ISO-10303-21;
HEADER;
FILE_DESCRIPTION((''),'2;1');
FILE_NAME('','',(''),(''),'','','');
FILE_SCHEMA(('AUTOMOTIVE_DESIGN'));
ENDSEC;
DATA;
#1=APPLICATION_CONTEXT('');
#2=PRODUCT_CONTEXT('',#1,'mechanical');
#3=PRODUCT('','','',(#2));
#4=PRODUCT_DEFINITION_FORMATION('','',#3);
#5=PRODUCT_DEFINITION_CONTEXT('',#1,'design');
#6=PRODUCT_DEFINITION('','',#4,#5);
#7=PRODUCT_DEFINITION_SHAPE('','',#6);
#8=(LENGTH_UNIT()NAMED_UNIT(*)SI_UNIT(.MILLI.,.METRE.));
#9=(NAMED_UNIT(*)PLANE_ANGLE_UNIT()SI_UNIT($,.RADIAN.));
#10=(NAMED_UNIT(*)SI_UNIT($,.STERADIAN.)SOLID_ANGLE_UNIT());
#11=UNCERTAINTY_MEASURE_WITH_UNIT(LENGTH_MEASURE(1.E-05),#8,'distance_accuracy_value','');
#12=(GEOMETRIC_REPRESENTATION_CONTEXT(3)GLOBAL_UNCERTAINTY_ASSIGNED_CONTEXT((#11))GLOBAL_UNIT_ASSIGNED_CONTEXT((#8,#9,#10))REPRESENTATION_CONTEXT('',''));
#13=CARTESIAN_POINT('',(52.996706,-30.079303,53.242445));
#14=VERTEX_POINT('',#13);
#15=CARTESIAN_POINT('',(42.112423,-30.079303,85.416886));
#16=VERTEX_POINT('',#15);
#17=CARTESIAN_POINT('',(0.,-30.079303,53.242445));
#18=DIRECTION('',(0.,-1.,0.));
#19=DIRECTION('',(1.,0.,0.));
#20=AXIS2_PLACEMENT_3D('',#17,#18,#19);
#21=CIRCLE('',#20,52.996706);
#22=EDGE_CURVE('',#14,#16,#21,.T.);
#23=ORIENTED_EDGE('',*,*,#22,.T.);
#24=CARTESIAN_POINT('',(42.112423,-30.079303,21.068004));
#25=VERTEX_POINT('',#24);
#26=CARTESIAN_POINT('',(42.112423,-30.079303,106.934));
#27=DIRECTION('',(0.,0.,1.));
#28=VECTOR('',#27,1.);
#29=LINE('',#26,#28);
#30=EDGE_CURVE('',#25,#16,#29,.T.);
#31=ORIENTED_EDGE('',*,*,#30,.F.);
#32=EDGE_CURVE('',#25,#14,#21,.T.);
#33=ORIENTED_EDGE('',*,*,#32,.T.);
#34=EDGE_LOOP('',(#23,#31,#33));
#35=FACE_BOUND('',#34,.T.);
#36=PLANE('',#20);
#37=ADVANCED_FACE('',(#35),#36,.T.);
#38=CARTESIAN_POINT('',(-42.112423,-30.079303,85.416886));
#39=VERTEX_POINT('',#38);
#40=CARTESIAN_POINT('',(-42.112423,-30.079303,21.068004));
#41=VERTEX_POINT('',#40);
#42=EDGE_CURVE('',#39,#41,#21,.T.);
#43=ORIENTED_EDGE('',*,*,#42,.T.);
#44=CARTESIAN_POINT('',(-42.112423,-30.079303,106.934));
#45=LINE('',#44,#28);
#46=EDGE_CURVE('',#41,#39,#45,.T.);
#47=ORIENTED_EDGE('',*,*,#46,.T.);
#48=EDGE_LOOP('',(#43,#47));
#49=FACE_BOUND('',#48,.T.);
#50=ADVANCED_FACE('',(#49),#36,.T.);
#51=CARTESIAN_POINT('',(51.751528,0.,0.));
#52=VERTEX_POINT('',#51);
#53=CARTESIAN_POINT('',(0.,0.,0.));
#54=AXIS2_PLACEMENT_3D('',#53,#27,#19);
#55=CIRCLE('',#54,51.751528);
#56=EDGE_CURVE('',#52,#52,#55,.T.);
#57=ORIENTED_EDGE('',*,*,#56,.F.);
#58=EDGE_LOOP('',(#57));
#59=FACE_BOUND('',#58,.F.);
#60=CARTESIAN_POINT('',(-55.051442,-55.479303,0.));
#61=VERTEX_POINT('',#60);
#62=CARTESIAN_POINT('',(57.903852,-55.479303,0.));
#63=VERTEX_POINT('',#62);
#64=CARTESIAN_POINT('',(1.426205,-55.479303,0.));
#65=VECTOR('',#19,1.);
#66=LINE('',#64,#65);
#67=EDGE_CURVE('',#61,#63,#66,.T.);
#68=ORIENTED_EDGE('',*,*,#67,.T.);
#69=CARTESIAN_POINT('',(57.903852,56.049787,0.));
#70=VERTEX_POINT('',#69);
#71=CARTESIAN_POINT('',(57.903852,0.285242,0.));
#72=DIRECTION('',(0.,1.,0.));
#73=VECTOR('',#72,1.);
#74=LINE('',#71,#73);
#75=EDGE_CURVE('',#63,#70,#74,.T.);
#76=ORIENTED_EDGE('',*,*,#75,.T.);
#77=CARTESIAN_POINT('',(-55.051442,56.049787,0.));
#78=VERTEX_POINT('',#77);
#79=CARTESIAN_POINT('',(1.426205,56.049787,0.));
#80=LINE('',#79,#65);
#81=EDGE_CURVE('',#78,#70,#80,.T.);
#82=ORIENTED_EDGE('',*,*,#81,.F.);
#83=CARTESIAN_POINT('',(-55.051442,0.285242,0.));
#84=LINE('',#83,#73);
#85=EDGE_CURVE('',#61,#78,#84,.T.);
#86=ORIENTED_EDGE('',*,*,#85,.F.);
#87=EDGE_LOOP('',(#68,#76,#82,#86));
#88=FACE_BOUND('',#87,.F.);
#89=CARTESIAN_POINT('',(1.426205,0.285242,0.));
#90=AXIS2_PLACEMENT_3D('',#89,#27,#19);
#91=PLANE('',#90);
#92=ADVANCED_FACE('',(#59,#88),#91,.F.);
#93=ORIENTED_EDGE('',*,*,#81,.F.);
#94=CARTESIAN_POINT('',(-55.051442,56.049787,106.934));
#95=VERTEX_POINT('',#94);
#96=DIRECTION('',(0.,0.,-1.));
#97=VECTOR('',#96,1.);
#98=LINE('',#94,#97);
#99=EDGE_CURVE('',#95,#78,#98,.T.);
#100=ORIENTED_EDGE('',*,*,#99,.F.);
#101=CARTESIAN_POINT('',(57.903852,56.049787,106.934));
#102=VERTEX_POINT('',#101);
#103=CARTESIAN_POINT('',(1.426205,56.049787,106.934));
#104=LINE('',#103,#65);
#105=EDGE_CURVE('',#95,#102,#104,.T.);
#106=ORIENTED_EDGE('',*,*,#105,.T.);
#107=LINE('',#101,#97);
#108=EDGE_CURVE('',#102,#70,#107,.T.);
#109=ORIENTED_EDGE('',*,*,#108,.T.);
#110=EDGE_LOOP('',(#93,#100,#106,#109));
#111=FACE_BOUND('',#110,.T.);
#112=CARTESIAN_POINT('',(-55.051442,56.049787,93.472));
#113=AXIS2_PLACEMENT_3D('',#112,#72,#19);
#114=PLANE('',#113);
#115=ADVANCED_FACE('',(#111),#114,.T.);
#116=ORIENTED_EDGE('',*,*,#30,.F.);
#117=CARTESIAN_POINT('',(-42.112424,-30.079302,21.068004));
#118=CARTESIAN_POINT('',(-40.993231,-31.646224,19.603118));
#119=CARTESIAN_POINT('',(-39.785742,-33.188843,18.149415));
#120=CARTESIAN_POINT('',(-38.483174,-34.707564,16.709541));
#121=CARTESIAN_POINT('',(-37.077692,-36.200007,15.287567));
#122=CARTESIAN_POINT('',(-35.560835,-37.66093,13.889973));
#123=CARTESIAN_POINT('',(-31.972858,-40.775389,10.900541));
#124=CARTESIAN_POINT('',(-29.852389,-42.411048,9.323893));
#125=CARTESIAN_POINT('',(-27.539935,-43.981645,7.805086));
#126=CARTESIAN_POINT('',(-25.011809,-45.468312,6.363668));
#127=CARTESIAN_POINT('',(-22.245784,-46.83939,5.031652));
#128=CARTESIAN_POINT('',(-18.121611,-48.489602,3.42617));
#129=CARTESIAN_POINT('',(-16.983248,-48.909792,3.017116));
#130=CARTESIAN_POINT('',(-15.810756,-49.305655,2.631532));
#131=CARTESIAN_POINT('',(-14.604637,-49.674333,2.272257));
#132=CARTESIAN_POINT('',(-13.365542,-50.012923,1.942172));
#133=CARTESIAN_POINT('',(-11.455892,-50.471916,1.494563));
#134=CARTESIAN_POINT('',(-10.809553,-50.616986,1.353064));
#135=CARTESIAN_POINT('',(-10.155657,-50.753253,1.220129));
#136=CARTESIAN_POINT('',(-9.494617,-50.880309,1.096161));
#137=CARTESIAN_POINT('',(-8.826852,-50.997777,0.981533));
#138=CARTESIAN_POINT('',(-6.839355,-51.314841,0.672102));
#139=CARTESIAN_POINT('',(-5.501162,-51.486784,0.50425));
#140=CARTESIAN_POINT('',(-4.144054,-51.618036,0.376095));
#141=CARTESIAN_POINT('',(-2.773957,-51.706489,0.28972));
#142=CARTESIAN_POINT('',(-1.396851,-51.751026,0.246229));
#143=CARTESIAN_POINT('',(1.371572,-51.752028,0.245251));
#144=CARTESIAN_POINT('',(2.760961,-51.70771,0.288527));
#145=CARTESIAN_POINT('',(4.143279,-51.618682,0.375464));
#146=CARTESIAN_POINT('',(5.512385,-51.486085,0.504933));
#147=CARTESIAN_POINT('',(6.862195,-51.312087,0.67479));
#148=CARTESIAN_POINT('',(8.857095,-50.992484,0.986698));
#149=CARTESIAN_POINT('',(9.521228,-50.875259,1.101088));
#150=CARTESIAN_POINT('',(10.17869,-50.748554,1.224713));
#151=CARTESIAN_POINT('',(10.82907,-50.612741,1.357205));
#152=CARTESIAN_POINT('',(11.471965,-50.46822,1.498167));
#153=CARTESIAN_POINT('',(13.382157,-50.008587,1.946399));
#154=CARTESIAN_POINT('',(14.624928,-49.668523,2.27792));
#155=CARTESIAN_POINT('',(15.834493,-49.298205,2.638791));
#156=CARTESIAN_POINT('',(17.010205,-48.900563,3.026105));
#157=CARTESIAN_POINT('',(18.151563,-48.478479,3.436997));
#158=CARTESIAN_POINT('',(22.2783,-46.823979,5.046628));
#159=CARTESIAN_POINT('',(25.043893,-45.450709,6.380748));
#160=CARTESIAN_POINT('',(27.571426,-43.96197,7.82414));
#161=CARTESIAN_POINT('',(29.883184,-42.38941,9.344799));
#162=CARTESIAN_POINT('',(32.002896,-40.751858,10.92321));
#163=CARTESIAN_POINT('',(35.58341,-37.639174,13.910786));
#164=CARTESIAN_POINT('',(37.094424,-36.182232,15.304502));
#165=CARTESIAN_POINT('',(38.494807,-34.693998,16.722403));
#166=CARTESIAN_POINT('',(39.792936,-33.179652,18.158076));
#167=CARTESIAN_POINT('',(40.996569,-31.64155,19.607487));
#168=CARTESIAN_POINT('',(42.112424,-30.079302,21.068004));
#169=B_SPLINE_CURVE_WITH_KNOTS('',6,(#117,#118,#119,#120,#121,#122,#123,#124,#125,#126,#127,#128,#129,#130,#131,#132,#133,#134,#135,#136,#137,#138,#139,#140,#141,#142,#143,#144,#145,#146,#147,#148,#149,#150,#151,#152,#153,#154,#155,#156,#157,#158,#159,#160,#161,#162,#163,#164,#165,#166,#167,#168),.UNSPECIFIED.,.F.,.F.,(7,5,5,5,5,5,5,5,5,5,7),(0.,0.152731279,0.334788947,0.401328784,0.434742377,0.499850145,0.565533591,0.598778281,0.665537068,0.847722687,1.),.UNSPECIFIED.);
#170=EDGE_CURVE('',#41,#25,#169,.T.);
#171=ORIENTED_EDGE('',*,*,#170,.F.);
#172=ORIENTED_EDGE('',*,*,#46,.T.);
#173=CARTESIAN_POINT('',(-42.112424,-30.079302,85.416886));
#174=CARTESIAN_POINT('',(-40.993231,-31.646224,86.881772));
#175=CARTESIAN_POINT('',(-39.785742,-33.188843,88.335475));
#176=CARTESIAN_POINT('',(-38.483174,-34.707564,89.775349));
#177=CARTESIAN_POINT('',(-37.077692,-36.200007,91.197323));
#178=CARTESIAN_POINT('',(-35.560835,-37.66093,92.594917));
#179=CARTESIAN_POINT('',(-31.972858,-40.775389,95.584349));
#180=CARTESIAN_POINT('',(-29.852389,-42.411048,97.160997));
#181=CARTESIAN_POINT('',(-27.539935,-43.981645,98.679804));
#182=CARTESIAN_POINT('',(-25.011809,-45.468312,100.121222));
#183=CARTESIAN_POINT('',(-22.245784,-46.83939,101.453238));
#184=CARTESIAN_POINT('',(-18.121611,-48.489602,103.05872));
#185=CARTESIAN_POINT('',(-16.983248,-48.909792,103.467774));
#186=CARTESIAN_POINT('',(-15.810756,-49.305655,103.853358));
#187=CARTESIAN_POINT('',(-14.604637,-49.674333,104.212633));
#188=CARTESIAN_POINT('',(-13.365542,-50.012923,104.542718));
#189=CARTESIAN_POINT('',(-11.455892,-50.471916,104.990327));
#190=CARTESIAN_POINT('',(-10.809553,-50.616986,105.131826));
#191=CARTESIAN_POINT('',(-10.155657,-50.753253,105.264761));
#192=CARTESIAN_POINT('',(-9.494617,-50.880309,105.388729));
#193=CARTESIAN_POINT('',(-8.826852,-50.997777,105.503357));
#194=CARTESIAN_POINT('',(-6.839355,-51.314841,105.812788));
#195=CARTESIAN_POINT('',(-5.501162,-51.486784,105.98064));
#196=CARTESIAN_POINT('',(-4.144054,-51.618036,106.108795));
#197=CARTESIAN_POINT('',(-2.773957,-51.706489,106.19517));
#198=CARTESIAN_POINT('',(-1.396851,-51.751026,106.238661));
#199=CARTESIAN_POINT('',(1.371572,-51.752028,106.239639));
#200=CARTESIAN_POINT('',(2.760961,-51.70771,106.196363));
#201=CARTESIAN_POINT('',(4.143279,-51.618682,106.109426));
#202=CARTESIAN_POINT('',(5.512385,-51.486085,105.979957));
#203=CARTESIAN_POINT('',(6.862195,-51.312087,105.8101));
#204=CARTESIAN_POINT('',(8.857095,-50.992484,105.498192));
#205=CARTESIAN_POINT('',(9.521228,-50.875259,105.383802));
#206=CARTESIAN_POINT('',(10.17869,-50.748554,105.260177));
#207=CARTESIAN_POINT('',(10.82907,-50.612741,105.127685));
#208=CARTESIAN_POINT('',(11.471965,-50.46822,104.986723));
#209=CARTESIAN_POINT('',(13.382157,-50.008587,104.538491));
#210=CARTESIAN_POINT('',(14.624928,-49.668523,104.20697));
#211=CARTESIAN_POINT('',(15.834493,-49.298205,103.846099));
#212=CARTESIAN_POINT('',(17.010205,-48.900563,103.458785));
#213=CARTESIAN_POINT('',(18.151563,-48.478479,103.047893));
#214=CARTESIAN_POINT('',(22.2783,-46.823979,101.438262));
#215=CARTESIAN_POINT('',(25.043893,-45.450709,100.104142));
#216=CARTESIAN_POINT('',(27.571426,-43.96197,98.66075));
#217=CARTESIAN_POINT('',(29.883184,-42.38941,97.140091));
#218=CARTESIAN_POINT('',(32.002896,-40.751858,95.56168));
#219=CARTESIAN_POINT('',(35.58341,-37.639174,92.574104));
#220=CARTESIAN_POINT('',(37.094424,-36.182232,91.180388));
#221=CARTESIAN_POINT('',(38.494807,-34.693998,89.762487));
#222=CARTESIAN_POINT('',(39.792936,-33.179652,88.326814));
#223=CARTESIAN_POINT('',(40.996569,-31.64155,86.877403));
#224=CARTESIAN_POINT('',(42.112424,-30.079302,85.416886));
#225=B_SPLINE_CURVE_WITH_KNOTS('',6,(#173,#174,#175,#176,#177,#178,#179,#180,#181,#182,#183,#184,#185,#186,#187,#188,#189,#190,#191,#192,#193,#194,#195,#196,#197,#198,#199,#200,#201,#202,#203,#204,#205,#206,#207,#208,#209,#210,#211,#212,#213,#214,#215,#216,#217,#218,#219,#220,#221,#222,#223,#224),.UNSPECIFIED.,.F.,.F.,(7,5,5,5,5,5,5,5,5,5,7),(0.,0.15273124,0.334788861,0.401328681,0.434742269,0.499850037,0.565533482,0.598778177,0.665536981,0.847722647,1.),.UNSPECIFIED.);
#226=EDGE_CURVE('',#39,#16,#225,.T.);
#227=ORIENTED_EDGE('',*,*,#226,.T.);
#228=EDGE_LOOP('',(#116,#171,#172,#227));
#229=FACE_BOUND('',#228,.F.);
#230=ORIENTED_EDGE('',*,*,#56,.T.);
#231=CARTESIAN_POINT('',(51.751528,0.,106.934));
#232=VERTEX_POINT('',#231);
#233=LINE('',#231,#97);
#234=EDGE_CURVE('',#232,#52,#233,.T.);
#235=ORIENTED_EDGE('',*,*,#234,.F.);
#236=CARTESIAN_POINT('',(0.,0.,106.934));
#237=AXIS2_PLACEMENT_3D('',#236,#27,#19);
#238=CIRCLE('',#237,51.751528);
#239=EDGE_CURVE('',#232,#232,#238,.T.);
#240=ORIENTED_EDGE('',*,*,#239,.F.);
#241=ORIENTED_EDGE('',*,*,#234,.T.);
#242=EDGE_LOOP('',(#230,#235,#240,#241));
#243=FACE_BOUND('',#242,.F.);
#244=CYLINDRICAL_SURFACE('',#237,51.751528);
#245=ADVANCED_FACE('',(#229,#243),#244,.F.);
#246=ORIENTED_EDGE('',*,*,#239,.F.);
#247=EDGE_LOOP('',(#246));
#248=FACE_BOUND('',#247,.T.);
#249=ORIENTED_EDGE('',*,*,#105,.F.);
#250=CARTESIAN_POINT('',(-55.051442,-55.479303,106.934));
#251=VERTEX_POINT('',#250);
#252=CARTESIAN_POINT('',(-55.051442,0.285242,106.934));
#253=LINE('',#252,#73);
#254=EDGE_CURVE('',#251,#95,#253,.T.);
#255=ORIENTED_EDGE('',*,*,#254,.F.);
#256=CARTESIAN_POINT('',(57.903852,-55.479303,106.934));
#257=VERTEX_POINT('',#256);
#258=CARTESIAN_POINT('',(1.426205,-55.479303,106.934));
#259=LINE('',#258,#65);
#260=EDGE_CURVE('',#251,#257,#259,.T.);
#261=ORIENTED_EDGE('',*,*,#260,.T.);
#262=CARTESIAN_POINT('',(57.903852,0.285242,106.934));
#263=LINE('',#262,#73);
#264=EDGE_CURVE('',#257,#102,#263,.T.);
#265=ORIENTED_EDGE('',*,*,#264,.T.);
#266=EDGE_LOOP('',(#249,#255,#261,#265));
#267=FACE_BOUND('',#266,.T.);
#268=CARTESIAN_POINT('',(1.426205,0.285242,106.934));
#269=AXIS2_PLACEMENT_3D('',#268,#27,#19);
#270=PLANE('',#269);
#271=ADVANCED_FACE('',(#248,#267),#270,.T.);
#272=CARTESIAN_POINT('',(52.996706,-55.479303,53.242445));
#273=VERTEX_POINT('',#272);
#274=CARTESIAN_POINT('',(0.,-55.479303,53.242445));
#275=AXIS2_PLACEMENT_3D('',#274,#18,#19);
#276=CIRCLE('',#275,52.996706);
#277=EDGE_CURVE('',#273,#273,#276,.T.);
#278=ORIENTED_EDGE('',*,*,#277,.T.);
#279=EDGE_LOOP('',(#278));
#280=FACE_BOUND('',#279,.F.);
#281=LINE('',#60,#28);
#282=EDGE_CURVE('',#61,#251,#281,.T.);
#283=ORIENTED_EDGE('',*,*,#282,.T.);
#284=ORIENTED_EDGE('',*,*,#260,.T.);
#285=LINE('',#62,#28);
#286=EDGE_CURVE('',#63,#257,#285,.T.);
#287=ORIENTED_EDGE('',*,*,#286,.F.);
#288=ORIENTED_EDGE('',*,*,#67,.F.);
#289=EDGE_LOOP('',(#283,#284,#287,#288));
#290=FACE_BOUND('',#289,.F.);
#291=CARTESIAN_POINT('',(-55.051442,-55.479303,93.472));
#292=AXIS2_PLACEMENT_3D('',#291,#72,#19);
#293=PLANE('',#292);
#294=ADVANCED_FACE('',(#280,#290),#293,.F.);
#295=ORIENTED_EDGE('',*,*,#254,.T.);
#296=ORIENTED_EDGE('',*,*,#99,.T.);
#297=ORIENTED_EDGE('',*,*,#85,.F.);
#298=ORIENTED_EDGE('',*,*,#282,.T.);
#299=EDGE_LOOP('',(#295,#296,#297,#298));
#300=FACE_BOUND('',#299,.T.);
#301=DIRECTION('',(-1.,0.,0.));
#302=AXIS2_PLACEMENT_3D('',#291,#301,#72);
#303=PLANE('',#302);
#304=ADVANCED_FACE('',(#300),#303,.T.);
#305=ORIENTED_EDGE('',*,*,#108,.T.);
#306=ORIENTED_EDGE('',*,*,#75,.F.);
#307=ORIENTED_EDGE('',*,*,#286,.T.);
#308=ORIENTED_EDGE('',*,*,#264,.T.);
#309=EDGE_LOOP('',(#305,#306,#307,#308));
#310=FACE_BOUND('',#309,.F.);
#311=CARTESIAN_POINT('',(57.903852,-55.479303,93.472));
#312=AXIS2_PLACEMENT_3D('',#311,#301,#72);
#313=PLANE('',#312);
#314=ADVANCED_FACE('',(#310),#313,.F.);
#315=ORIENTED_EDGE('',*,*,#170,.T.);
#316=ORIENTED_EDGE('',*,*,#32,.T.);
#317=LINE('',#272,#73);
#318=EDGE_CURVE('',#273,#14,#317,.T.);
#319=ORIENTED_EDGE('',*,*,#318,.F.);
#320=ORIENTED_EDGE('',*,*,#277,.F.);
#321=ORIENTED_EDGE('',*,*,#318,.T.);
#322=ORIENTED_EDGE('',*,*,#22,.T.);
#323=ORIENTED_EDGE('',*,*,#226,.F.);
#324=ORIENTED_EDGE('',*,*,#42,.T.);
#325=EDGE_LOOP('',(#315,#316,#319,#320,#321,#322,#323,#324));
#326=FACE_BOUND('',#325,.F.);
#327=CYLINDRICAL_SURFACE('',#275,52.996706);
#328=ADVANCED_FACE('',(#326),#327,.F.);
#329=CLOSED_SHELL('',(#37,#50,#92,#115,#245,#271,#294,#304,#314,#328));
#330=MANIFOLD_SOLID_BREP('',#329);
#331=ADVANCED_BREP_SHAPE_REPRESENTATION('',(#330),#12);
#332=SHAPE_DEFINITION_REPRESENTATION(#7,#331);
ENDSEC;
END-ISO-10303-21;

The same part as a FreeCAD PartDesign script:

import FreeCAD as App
import Part
import Sketcher

V = App.Vector
Q = App.Units.Quantity

doc = App.newDocument("Part")
body = doc.addObject("PartDesign::Body", "Body")

# Sketch on XY plane
sketch1 = doc.addObject("Sketcher::SketchObject", "Sketch")
body.addObject(sketch1)
sketch1.AttachmentSupport = (doc.XY_Plane, [""])
sketch1.MapMode = "FlatFace"
sketch1.addGeometry([
    Part.LineSegment(V(-55, 56, 0), V(-55, -55, 0)),
    Part.LineSegment(V(-55, -55, 0), V(58, -55, 0)),
    Part.LineSegment(V(58, -55, 0), V(58, 56, 0)),
    Part.LineSegment(V(58, 56, 0), V(-55, 56, 0)),
], False)
sketch1.addConstraint([
    Sketcher.Constraint("Coincident", 0, 2, 1, 1),
    Sketcher.Constraint("Coincident", 1, 2, 2, 1),
    Sketcher.Constraint("Coincident", 2, 2, 3, 1),
    Sketcher.Constraint("Coincident", 3, 2, 0, 1),
    Sketcher.Constraint("Vertical", 0),
    Sketcher.Constraint("Horizontal", 1),
    Sketcher.Constraint("Vertical", 2),
    Sketcher.Constraint("Horizontal", 3),
    Sketcher.Constraint("DistanceY", 0, 2, 0, 1, Q("111.52909 mm")),
    Sketcher.Constraint("DistanceX", 1, 1, 1, 2, Q("112.955294 mm")),
    Sketcher.Constraint("DistanceX", 0, 2, -1, 1, Q("55.051442 mm")),
    Sketcher.Constraint("DistanceY", 0, 2, -1, 1, Q("55.479303 mm")),
])
pad1 = doc.addObject("PartDesign::Pad", "Pad")
body.addObject(pad1)
pad1.Profile = sketch1
pad1.Length = Q("3.68 in")

# Sketch on XY plane
sketch2 = doc.addObject("Sketcher::SketchObject", "Sketch001")
body.addObject(sketch2)
sketch2.AttachmentSupport = (doc.XY_Plane, [""])
sketch2.MapMode = "FlatFace"
sketch2.AttachmentOffset = App.Placement(V(0, 0, 3.68 * 25.4), App.Rotation())
sketch2.addGeometry([
    Part.LineSegment(V(-55, 56, 0), V(-55, -55, 0)),
    Part.LineSegment(V(-55, -55, 0), V(58, -55, 0)),
    Part.LineSegment(V(58, -55, 0), V(58, 56, 0)),
    Part.LineSegment(V(58, 56, 0), V(-55, 56, 0)),
], False)
sketch2.addConstraint([
    Sketcher.Constraint("Coincident", 0, 2, 1, 1),
    Sketcher.Constraint("Coincident", 1, 2, 2, 1),
    Sketcher.Constraint("Coincident", 2, 2, 3, 1),
    Sketcher.Constraint("Coincident", 3, 2, 0, 1),
    Sketcher.Constraint("Vertical", 0),
    Sketcher.Constraint("Horizontal", 1),
    Sketcher.Constraint("Vertical", 2),
    Sketcher.Constraint("Horizontal", 3),
    Sketcher.Constraint("DistanceY", 0, 2, 0, 1, Q("111.52909 mm")),
    Sketcher.Constraint("DistanceX", 1, 1, 1, 2, Q("112.955294 mm")),
    Sketcher.Constraint("DistanceX", 0, 2, -1, 1, Q("55.051442 mm")),
    Sketcher.Constraint("DistanceY", 0, 2, -1, 1, Q("55.479303 mm")),
])
pad2 = doc.addObject("PartDesign::Pad", "Pad001")
body.addObject(pad2)
pad2.Profile = sketch2
pad2.Length = Q("0.53 in")

# Sketch on XY plane
sketch3 = doc.addObject("Sketcher::SketchObject", "Sketch002")
body.addObject(sketch3)
sketch3.AttachmentSupport = (doc.XY_Plane, [""])
sketch3.MapMode = "FlatFace"
sketch3.AttachmentOffset = App.Placement(V(0, 0, 4.21 * 25.4), App.Rotation())
sketch3.addGeometry(Part.Circle(V(0, 0, 0), V(0, 0, 1), 52), False)
sketch3.addConstraint([
    Sketcher.Constraint("Coincident", 0, 3, -1, 1),
    Sketcher.Constraint("Diameter", 0, Q("103.503056 mm")),
])
pocket1 = doc.addObject("PartDesign::Pocket", "Pocket")
body.addObject(pocket1)
pocket1.Profile = sketch3
pocket1.Length = Q("5.17 in")

# Sketch on XZ plane
sketch4 = doc.addObject("Sketcher::SketchObject", "Sketch003")
body.addObject(sketch4)
sketch4.AttachmentSupport = (doc.XZ_Plane, [""])
sketch4.MapMode = "FlatFace"
sketch4.AttachmentOffset = App.Placement(V(0, 0, 55.479303), App.Rotation())
sketch4.addGeometry(Part.Circle(V(0, 53, 0), V(0, 0, 1), 53), False)
sketch4.addConstraint([
    Sketcher.Constraint("PointOnObject", 0, 3, -2),
    Sketcher.Constraint("Diameter", 0, Q("105.993412 mm")),
    Sketcher.Constraint("DistanceY", -1, 1, 0, 3, Q("53.242445 mm")),
])
pocket2 = doc.addObject("PartDesign::Pocket", "Pocket001")
body.addObject(pocket2)
pocket2.Profile = sketch4
pocket2.Length = Q("1 in")

doc.recompute()
